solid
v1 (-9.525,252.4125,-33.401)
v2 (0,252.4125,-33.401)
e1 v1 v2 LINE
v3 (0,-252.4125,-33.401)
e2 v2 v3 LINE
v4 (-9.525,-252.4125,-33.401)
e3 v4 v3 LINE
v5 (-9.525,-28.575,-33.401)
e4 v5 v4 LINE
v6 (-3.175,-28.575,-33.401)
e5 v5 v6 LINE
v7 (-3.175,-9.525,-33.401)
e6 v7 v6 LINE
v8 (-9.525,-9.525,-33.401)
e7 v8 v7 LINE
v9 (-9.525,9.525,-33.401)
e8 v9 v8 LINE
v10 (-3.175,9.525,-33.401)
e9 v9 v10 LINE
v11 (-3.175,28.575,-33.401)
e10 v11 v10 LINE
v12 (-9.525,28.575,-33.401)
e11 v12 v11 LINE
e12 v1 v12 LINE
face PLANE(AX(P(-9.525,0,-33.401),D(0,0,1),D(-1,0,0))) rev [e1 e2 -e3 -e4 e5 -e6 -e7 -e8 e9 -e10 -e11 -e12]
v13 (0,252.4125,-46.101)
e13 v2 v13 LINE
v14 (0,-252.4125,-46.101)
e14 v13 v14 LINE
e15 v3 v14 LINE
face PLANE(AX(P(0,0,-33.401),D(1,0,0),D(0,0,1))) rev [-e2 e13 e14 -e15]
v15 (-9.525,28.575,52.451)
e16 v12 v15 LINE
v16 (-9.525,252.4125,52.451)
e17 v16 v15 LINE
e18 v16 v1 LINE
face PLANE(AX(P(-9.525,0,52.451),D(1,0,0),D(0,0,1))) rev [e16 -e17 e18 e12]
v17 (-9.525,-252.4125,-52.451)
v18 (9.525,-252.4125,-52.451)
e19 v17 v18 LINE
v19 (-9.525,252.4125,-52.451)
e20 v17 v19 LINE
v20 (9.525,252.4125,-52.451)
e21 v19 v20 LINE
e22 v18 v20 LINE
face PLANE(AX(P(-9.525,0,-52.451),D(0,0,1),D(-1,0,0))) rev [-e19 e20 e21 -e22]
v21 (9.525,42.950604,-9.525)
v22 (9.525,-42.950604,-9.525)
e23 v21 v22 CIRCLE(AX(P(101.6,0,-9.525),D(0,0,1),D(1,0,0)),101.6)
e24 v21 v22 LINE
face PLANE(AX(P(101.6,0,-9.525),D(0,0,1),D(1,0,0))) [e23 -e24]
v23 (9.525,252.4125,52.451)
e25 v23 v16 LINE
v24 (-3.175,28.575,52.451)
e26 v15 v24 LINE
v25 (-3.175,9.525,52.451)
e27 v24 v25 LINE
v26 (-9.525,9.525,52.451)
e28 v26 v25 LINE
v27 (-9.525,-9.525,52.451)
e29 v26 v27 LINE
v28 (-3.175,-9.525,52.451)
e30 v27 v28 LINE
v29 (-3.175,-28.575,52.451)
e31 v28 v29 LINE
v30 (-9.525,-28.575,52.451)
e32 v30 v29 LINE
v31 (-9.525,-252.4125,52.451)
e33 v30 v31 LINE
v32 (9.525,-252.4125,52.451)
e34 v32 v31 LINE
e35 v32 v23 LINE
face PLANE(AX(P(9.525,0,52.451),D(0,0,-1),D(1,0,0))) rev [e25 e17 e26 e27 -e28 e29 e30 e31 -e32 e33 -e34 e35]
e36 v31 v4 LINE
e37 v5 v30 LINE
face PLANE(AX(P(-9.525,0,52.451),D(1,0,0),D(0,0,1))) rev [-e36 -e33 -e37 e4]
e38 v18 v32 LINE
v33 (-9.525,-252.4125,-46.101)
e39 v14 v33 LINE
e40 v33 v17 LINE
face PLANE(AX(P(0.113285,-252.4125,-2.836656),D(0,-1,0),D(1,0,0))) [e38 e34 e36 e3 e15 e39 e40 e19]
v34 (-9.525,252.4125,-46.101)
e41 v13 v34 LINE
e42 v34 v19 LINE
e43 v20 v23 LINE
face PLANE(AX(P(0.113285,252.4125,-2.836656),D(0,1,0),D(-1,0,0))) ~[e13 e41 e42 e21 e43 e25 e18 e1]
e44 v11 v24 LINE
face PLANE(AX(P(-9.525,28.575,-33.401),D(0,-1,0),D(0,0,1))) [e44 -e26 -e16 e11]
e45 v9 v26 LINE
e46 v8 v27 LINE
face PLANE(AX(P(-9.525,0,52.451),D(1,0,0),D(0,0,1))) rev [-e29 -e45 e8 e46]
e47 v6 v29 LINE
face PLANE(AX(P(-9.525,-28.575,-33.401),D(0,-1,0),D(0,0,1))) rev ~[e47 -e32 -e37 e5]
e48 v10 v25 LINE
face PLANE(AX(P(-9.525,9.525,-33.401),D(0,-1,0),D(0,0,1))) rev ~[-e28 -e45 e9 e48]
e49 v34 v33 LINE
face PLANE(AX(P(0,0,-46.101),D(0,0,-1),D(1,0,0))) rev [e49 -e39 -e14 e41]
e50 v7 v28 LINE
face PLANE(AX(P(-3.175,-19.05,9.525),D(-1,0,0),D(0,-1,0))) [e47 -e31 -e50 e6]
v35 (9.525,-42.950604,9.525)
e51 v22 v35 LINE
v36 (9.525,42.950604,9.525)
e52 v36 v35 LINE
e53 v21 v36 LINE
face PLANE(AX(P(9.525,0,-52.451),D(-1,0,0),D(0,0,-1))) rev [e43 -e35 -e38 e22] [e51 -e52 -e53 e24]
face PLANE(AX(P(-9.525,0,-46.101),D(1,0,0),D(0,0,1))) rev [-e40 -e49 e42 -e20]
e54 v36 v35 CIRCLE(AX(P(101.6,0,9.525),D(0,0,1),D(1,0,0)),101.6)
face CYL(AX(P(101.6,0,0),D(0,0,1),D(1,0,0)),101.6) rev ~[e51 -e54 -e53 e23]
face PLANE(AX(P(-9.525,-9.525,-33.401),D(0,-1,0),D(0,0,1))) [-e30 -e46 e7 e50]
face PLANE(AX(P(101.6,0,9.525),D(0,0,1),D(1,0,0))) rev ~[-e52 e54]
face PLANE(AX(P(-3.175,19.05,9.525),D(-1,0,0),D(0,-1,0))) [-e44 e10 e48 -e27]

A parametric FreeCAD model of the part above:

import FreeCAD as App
import Part
import Sketcher
from FreeCAD import Vector
Q = App.Units.Quantity

doc = App.newDocument("Part")
body = doc.addObject("PartDesign::Body", "Body")

# Sketch on XZ plane
sketch1 = body.newObject("Sketcher::SketchObject", "Sketch")
sketch1.AttachmentSupport = (doc.getObject("XZ_Plane"), [""])
sketch1.MapMode = "FlatFace"
sketch1.addGeometry([
    Part.LineSegment(Vector(10, 52, 0), Vector(-10, 52, 0)),  # 0
    Part.LineSegment(Vector(-10, 52, 0), Vector(-10, -33, 0)),  # 1
    Part.LineSegment(Vector(-10, -33, 0), Vector(0, -33, 0)),  # 2
    Part.LineSegment(Vector(0, -33, 0), Vector(0, -46, 0)),  # 3
    Part.LineSegment(Vector(0, -46, 0), Vector(-10, -46, 0)),  # 4
    Part.LineSegment(Vector(-10, -46, 0), Vector(-10, -52, 0)),  # 5
    Part.LineSegment(Vector(-10, -52, 0), Vector(10, -52, 0)),  # 6
    Part.LineSegment(Vector(10, -52, 0), Vector(10, 52, 0)),  # 7
], False)
sketch1.addConstraint([
    Sketcher.Constraint("Coincident", 0, 2, 1, 1),
    Sketcher.Constraint("Coincident", 1, 2, 2, 1),
    Sketcher.Constraint("Coincident", 2, 2, 3, 1),
    Sketcher.Constraint("Coincident", 3, 2, 4, 1),
    Sketcher.Constraint("Coincident", 4, 2, 5, 1),
    Sketcher.Constraint("Coincident", 5, 2, 6, 1),
    Sketcher.Constraint("Coincident", 6, 2, 7, 1),
    Sketcher.Constraint("Coincident", 7, 2, 0, 1),
    Sketcher.Constraint("Horizontal", 0),
    Sketcher.Constraint("Vertical", 1),
    Sketcher.Constraint("Horizontal", 2),
    Sketcher.Constraint("Vertical", 3),
    Sketcher.Constraint("Horizontal", 4),
    Sketcher.Constraint("Vertical", 5),
    Sketcher.Constraint("Horizontal", 6),
    Sketcher.Constraint("Vertical", 7),
    Sketcher.Constraint("Symmetric", 0, 2, 6, 2, -1, 1),
    Sketcher.Constraint("PointOnObject", 2, 2, -2),
    Sketcher.Constraint("Vertical", 1, 2, 4, 2),
    Sketcher.Constraint("DistanceY", 3, 2, 3, 1, Q("0.5 in")),
    Sketcher.Constraint("DistanceX", 0, 2, 0, 1, Q("0.75 in")),
    Sketcher.Constraint("DistanceY", 1, 2, 1, 1, Q("3.38 in")),
    Sketcher.Constraint("DistanceY", 5, 2, 5, 1, Q("0.25 in")),
])
pad1 = body.newObject("PartDesign::Pad", "Pad")
pad1.Profile = sketch1
pad1.Length = Q("9.9375 in")
body2 = doc.addObject("PartDesign::Body", "Body001")
doc.recompute()

body2.BaseFeature = body
doc.recompute()

mirroring = doc.addObject("Part::Mirroring", "Mirroring")
mirroring.Source = body
mirroring.Base = Vector(0, 0, 0)
mirroring.Normal = Vector(0, -1, 0)
body3 = doc.addObject("PartDesign::Body", "Body002")
body3.BaseFeature = mirroring
boolean = body2.newObject("PartDesign::Boolean", "Boolean")
boolean.Type = "Fuse"
boolean.addObjects([body3])
doc.recompute()

# Sketch on XY plane
sketch2 = body2.newObject("Sketcher::SketchObject", "Sketch001")
sketch2.AttachmentSupport = (doc.getObject("XY_Plane001"), [""])
sketch2.MapMode = "FlatFace"
sketch2.addGeometry(Part.Circle(Vector(102, 0, 0), Vector(0, 0, 1), 102), False)
sketch2.addConstraint([
    Sketcher.Constraint("PointOnObject", 0, 3, -1),
    Sketcher.Constraint("Diameter", 0, Q("8 in")),
    Sketcher.Constraint("DistanceX", -1, 1, 0, 3, Q("4 in")),
])
pocket1 = body2.newObject("PartDesign::Pocket", "Pocket")
pocket1.Profile = sketch2
pocket1.Length = Q("0.75 in")
pocket1.Midplane = True

# Sketch on YZ plane
sketch3 = body2.newObject("Sketcher::SketchObject", "Sketch002")
sketch3.AttachmentSupport = (doc.getObject("YZ_Plane001"), [""])
sketch3.MapMode = "FlatFace"
sketch3.AttachmentOffset = App.Placement(Vector(0, 0, -0.375 * 25.4), App.Rotation())
sketch3.addGeometry([
    Part.LineSegment(Vector(29, 52, 0), Vector(29, -33, 0)),  # 0
    Part.LineSegment(Vector(29, -33, 0), Vector(10, -33, 0)),  # 1
    Part.LineSegment(Vector(10, -33, 0), Vector(10, 52, 0)),  # 2
    Part.LineSegment(Vector(10, 52, 0), Vector(29, 52, 0)),  # 3
    Part.LineSegment(Vector(-10, 52, 0), Vector(-10, -33, 0)),  # 4
    Part.LineSegment(Vector(-10, -33, 0), Vector(-29, -33, 0)),  # 5
    Part.LineSegment(Vector(-29, -33, 0), Vector(-29, 52, 0)),  # 6
    Part.LineSegment(Vector(-29, 52, 0), Vector(-10, 52, 0)),  # 7
], False)
sketch3.addConstraint([
    Sketcher.Constraint("Coincident", 0, 2, 1, 1),
    Sketcher.Constraint("Coincident", 1, 2, 2, 1),
    Sketcher.Constraint("Coincident", 2, 2, 3, 1),
    Sketcher.Constraint("Coincident", 3, 2, 0, 1),
    Sketcher.Constraint("Coincident", 4, 2, 5, 1),
    Sketcher.Constraint("Coincident", 5, 2, 6, 1),
    Sketcher.Constraint("Coincident", 6, 2, 7, 1),
    Sketcher.Constraint("Coincident", 7, 2, 4, 1),
    Sketcher.Constraint("Vertical", 0),
    Sketcher.Constraint("Horizontal", 1),
    Sketcher.Constraint("Vertical", 2),
    Sketcher.Constraint("Horizontal", 3),
    Sketcher.Constraint("Vertical", 4),
    Sketcher.Constraint("Horizontal", 5),
    Sketcher.Constraint("Vertical", 6),
    Sketcher.Constraint("Horizontal", 7),
    Sketcher.Constraint("Symmetric", 1, 2, 4, 2, -2),
    Sketcher.Constraint("Symmetric", 3, 2, 6, 2, -2),
    Sketcher.Constraint("DistanceX", 1, 2, 1, 1, Q("0.75 in")),
    Sketcher.Constraint("DistanceY", 0, 2, 0, 1, Q("3.38 in")),
    Sketcher.Constraint("DistanceX", 4, 2, 0, 2, Q("1.5 in")),
    Sketcher.Constraint("DistanceY", 0, 2, -1, 1, Q("1.315 in")),
])
pocket2 = body2.newObject("PartDesign::Pocket", "Pocket001")
pocket2.Profile = sketch3
pocket2.Length = Q("0.25 in")
pocket2.Reversed = True
mirroring.Visibility = False

doc.recompute()
